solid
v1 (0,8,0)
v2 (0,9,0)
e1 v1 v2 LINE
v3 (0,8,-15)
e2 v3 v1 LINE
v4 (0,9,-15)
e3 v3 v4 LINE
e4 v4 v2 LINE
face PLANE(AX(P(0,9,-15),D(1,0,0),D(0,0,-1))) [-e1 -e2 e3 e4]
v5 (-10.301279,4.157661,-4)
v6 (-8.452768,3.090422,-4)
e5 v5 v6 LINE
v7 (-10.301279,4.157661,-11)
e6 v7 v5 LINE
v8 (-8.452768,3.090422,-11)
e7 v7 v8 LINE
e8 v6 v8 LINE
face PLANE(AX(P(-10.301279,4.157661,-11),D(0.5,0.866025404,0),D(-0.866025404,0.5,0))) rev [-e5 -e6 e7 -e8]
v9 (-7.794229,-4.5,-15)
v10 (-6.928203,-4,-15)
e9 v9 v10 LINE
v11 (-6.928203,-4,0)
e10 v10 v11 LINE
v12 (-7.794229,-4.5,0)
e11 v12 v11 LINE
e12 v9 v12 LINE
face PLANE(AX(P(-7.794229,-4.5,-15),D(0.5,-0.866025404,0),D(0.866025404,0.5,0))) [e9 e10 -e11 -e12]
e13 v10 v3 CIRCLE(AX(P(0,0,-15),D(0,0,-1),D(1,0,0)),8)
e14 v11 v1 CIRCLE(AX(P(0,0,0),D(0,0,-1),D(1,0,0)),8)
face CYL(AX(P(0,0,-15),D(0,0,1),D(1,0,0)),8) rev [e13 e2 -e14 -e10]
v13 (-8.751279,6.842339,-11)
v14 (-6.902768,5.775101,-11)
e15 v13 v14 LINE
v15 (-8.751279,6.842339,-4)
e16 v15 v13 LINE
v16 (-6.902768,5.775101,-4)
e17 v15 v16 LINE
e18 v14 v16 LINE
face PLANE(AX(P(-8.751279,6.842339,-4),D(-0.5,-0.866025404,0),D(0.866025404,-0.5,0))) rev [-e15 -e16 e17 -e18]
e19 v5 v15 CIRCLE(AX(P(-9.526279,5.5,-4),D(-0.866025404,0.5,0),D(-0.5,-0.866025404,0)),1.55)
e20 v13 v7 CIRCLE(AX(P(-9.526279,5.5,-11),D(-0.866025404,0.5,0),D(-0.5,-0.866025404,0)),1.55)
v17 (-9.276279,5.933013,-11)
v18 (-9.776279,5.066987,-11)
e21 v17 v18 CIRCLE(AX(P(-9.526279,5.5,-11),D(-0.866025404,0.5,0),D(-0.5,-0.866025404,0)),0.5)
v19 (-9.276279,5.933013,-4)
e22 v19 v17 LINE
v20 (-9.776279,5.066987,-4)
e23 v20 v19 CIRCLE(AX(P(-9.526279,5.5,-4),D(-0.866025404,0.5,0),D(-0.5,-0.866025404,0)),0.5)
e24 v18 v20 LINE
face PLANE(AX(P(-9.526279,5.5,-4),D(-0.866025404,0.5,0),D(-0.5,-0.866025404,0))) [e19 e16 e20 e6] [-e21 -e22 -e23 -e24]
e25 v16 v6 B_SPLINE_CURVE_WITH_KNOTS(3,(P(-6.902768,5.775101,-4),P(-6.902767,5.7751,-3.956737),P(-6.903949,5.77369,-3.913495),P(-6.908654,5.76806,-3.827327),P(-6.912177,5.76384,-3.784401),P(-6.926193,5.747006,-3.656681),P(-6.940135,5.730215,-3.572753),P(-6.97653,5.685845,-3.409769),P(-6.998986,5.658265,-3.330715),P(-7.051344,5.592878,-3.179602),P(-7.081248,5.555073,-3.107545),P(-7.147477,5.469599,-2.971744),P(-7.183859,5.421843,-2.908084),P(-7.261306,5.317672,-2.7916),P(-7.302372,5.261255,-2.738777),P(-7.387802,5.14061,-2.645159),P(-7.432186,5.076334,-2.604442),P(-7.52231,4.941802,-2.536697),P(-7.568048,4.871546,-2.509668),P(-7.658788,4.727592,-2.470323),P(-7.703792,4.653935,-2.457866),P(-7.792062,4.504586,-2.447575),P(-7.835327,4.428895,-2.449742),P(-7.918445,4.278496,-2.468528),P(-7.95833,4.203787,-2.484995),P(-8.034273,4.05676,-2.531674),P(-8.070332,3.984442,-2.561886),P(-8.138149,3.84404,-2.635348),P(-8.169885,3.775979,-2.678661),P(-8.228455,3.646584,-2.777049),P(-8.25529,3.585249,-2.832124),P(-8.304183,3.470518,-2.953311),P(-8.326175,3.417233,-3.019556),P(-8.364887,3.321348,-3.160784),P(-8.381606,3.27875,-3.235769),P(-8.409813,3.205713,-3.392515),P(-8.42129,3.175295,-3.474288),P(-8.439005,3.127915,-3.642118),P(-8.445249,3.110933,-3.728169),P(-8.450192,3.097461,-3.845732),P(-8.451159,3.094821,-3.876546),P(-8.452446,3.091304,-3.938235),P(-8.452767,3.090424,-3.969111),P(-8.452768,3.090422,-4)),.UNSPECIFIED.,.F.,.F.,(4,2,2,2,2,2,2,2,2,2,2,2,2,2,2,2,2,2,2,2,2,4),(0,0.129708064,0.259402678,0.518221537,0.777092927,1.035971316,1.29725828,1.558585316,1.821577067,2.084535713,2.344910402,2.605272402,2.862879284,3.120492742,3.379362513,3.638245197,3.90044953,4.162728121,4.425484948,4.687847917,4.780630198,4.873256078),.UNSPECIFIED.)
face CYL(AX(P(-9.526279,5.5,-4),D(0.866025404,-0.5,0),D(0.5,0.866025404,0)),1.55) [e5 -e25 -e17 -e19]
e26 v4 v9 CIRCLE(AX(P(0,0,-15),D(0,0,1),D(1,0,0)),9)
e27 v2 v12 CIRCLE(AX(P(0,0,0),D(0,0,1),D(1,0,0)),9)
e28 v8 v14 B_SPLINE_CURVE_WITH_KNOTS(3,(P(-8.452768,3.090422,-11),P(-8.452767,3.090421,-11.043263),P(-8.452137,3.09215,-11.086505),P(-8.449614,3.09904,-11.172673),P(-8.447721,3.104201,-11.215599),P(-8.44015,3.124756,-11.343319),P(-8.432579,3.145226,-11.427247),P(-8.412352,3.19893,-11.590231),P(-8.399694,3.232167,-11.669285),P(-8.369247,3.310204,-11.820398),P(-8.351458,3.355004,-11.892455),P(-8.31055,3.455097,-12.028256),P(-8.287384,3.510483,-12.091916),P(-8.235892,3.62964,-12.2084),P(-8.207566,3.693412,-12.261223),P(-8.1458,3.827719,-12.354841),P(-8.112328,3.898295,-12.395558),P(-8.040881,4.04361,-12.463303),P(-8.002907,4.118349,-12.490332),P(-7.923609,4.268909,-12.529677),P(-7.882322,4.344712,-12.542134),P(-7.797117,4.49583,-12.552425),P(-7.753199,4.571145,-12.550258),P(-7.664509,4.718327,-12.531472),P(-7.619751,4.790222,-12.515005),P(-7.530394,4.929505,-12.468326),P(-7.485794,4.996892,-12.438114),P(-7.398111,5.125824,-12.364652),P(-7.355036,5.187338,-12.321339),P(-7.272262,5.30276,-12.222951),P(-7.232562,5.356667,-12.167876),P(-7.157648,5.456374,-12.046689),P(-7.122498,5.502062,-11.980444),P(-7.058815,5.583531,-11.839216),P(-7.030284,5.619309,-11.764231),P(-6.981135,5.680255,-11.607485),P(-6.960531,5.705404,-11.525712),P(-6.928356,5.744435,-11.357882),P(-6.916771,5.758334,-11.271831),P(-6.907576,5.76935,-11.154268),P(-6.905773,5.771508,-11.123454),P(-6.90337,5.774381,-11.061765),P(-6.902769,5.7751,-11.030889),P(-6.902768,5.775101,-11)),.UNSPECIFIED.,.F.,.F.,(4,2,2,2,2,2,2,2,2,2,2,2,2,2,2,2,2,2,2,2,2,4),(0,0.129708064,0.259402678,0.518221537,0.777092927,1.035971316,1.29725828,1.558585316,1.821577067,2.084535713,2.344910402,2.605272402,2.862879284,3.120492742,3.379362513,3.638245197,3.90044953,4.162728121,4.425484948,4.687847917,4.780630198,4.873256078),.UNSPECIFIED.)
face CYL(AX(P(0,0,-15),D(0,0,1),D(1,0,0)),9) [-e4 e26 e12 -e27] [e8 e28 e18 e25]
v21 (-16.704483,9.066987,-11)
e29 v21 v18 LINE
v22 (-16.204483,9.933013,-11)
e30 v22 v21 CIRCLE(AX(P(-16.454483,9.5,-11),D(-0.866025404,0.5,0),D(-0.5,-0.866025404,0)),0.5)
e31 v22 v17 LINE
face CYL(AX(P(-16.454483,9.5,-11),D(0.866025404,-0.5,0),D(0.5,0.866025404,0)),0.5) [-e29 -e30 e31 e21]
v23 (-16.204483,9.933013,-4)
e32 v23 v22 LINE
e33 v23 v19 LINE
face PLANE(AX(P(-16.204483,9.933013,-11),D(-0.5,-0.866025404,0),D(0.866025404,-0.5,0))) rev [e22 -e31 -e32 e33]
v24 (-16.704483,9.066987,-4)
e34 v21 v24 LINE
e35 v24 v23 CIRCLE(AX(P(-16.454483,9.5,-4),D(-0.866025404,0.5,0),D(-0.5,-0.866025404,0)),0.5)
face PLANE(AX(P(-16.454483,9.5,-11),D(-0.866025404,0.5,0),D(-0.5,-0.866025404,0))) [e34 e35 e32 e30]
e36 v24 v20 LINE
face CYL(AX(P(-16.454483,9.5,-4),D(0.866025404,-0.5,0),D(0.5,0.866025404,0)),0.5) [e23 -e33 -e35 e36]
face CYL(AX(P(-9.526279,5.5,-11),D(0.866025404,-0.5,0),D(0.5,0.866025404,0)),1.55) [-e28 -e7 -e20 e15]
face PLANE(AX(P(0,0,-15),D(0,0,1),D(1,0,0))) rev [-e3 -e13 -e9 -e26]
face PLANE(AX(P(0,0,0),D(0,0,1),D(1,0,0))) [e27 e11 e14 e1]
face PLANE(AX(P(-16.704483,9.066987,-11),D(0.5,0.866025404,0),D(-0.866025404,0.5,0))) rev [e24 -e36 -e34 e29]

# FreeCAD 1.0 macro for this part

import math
import FreeCAD as App
import Part
import Sketcher

V = App.Vector
Q = App.Units.Quantity

doc = App.newDocument("Part")
body = doc.addObject("PartDesign::Body", "Body")

# Sketch on XY plane
sketch1 = body.newObject("Sketcher::SketchObject", "Sketch")
sketch1.AttachmentSupport = (doc.getObject("XY_Plane"), [""])
sketch1.MapMode = "FlatFace"
sketch1.addGeometry([
    Part.LineSegment(V(-7.8, -4.5, 0), V(-6.9, -4, 0)),
    Part.ArcOfCircle(Part.Circle(V(0, 0, 0), V(0, 0, 1), 8), math.radians(90), math.radians(210)),
    Part.LineSegment(V(0, 8, 0), V(0, 9, 0)),
    Part.ArcOfCircle(Part.Circle(V(0, 0, 0), V(0, 0, 1), 9), math.radians(90), math.radians(210)),
], False)
sketch1.addConstraint([
    Sketcher.Constraint("Coincident", 0, 2, 1, 2),
    Sketcher.Constraint("Coincident", 1, 1, 2, 1),
    Sketcher.Constraint("Coincident", 2, 2, 3, 1),
    Sketcher.Constraint("Coincident", 3, 2, 0, 1),
    Sketcher.Constraint("Vertical", 2),
    Sketcher.Constraint("Coincident", 1, 3, -1, 1),
    Sketcher.Constraint("Coincident", 3, 3, -1, 1),
    Sketcher.Constraint("PointOnObject", 1, 1, -2),
    Sketcher.Constraint("Radius", 1, 8.0),
    Sketcher.Constraint("Radius", 3, 9.0),
    Sketcher.Constraint("Angle", 0, Q("30 deg")),
    Sketcher.Constraint("DistanceY", 0, 2, -1, 1, 4.0),
])
pad1 = body.newObject("PartDesign::Pad", "Pad")
pad1.Profile = sketch1
pad1.Length = 15
pad1.Reversed = True

# Sketch on an angled plane
sketch2 = body.newObject("Sketcher::SketchObject", "Sketch001")
sketch2.Placement = App.Placement(V(-7.782191, 4.49305, 0), App.Rotation(V(0, 0, 1), V(0.5, 0.866025404, 0), V(-0.866025404, 0.5, 0), "ZXY"))
sketch2.addGeometry([
    Part.LineSegment(V(-4, 0.5, 0), V(-11, 0.5, 0)),
    Part.ArcOfCircle(Part.Circle(V(-11, 0, 0), V(0, 0, 1), 0.5), math.radians(90), math.radians(270)),
    Part.LineSegment(V(-11, -0.5, 0), V(-4, -0.5, 0)),
    Part.ArcOfCircle(Part.Circle(V(-4, 0, 0), V(0, 0, 1), 0.5), math.radians(-90), math.radians(90)),
], False)
sketch2.addConstraint([
    Sketcher.Constraint("Tangent", 0, 2, 1, 1),
    Sketcher.Constraint("Tangent", 1, 2, 2, 1),
    Sketcher.Constraint("Tangent", 2, 2, 3, 1),
    Sketcher.Constraint("Tangent", 3, 2, 0, 1),
    Sketcher.Constraint("Horizontal", 0),
    Sketcher.Constraint("Horizontal", 2),
    Sketcher.Constraint("PointOnObject", 1, 3, -1),
    Sketcher.Constraint("Radius", 1, 0.5),
    Sketcher.Constraint("DistanceX", 0, 2, 0, 1, 7.0),
    Sketcher.Constraint("DistanceX", 1, 3, -1, 1, 11.0),
])
pad2 = body.newObject("PartDesign::Pad", "Pad001")
pad2.Profile = sketch2
pad2.Length = 10.0139

# Sketch on an angled plane
sketch3 = body.newObject("Sketcher::SketchObject", "Sketch002")
sketch3.Placement = App.Placement(V(-7.677768, 4.432761, 0), App.Rotation(V(0, 0, 1), V(0.5, 0.866025404, 0), V(-0.866025404, 0.5, 0), "ZXY"))
sketch3.addGeometry([
    Part.LineSegment(V(-4, 1.6, 0), V(-11, 1.6, 0)),
    Part.ArcOfCircle(Part.Circle(V(-11, 0, 0), V(0, 0, 1), 1.6), math.radians(90), math.radians(270)),
    Part.LineSegment(V(-11, -1.6, 0), V(-4, -1.6, 0)),
    Part.ArcOfCircle(Part.Circle(V(-4, 0, 0), V(0, 0, 1), 1.6), math.radians(-90), math.radians(90)),
], False)
sketch3.addConstraint([
    Sketcher.Constraint("Tangent", 0, 2, 1, 1),
    Sketcher.Constraint("Tangent", 1, 2, 2, 1),
    Sketcher.Constraint("Tangent", 2, 2, 3, 1),
    Sketcher.Constraint("Tangent", 3, 2, 0, 1),
    Sketcher.Constraint("Horizontal", 0),
    Sketcher.Constraint("Horizontal", 2),
    Sketcher.Constraint("PointOnObject", 1, 3, -1),
    Sketcher.Constraint("DistanceX", 0, 2, 0, 1, 7.0),
    Sketcher.Constraint("Radius", 1, 1.55),
    Sketcher.Constraint("DistanceX", 1, 3, -1, 1, 11.0),
])
pad3 = body.newObject("PartDesign::Pad", "Pad002")
pad3.Profile = sketch3
pad3.Length = 2.134477

doc.recompute()
